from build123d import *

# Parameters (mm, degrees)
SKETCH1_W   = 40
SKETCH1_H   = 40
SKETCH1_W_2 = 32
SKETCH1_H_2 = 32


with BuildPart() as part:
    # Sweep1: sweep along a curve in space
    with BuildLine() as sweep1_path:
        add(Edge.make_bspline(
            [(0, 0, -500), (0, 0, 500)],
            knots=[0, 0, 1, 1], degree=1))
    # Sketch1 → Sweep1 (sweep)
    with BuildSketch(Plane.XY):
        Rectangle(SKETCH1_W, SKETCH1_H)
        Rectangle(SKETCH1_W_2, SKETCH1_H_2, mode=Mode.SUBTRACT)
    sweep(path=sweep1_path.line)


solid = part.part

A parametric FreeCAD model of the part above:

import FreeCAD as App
import Part
import Sketcher

V = App.Vector
Q = App.Units.Quantity


def add_polygon(sketch, points):
    """Adds a closed chain of lines whose ends are joined by coincident constraints."""
    first, n = sketch.GeometryCount, len(points)
    for a, b in zip(points, points[1:] + points[:1]):
        sketch.addGeometry(Part.LineSegment(App.Vector(*a, 0), App.Vector(*b, 0)), False)
    for i in range(n):
        sketch.addConstraint(Sketcher.Constraint("Coincident", first + i, 2, first + (i + 1) % n, 1))

doc = App.newDocument("Part")
body = doc.addObject("PartDesign::Body", "Body")

# Sketch on XY plane
sketch1 = body.newObject("Sketcher::SketchObject", "Sketch")
sketch1.AttachmentSupport = (doc.getObject("XY_Plane"), [""])
sketch1.MapMode = "FlatFace"
add_polygon(sketch1, [(-20, 20), (-20, -20), (20, -20), (20, 20)])  # lines 0-3
add_polygon(sketch1, [(16, -16), (-16, -16), (-16, 16), (16, 16)])  # lines 4-7
sketch1.addConstraint([
    Sketcher.Constraint("Vertical", 0),
    Sketcher.Constraint("Horizontal", 1),
    Sketcher.Constraint("Vertical", 2),
    Sketcher.Constraint("Horizontal", 3),
    Sketcher.Constraint("Horizontal", 4),
    Sketcher.Constraint("Vertical", 5),
    Sketcher.Constraint("Horizontal", 6),
    Sketcher.Constraint("Vertical", 7),
    Sketcher.Constraint("Symmetric", 0, 2, 2, 2, -1, 1),
    Sketcher.Constraint("Symmetric", 4, 2, 6, 2, -1, 1),
    Sketcher.Constraint("Equal", 3, 0),
    Sketcher.Constraint("Equal", 6, 5),
    Sketcher.Constraint("DistanceX", 1, 1, 1, 2, Q("40 mm")),
    Sketcher.Constraint("DistanceX", 4, 2, 4, 1, Q("32 mm")),
])

# Sketch on XZ plane
sketch2 = body.newObject("Sketcher::SketchObject", "Sketch001")
sketch2.AttachmentSupport = (doc.getObject("XZ_Plane"), [""])
sketch2.MapMode = "FlatFace"
sketch2.addGeometry(Part.BSplineCurve([V(0, -500, 0), V(0, 500, 0)], [2, 2], [0, 1], False, 1, [1, 1], False), False)
sketch2.addConstraint(Sketcher.Constraint("Block", 0))
doc.recompute()

additivepipe = body.newObject("PartDesign::AdditivePipe", "AdditivePipe")
additivepipe.Profile = sketch1
additivepipe.Spine = (sketch2, ["Edge1"])

doc.recompute()
